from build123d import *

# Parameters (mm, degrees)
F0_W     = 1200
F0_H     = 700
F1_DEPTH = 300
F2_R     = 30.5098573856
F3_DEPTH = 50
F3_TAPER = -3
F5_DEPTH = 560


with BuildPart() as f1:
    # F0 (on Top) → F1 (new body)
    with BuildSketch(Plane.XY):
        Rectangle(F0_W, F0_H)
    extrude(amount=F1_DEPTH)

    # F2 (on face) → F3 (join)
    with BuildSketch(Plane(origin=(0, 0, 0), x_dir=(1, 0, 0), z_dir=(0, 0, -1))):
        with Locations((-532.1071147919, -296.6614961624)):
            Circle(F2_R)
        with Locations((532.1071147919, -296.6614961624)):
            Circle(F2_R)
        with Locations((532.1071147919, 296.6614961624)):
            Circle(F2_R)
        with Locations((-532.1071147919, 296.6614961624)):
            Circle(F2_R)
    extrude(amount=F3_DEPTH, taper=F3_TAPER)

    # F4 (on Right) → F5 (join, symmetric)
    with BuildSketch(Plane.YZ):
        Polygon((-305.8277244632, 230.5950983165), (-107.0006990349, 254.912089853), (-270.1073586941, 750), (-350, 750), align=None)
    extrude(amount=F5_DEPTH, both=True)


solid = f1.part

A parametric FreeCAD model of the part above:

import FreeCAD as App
import Part
import Sketcher

doc = App.newDocument("Part")
params = doc.addObject("Spreadsheet::Sheet", "Params")
for row, (alias, value) in enumerate([
    ("sketch1_width", "1200 mm"),
    ("sketch1_height", "700 mm"),
    ("pad1_length", "300 mm"),
    ("pad2_length", "50 mm"),
    ("pad2_taper", "3 deg"),
    ("pad3_length", "1120 mm"),
], start=1):
    params.set(f"A{row}", alias)
    params.set(f"B{row}", "=" + value)
    params.setAlias(f"B{row}", alias)

body = doc.addObject("PartDesign::Body", "Body")

sketch1 = body.newObject("Sketcher::SketchObject", "Sketch")
sketch1.AttachmentSupport = (doc.getObject("XY_Plane"), [""])
sketch1.MapMode = "FlatFace"
sketch1.addGeometry(Part.LineSegment(App.Vector(-600, 350, 0), App.Vector(-600, -350, 0)), False)
sketch1.addGeometry(Part.LineSegment(App.Vector(-600, -350, 0), App.Vector(600, -350, 0)), False)
sketch1.addGeometry(Part.LineSegment(App.Vector(600, -350, 0), App.Vector(600, 350, 0)), False)
sketch1.addGeometry(Part.LineSegment(App.Vector(600, 350, 0), App.Vector(-600, 350, 0)), False)
sketch1.addConstraint(Sketcher.Constraint("Coincident", 0, 2, 1, 1))
sketch1.addConstraint(Sketcher.Constraint("Coincident", 1, 2, 2, 1))
sketch1.addConstraint(Sketcher.Constraint("Coincident", 2, 2, 3, 1))
sketch1.addConstraint(Sketcher.Constraint("Coincident", 3, 2, 0, 1))
sketch1.addConstraint(Sketcher.Constraint("Vertical", 0))
sketch1.addConstraint(Sketcher.Constraint("Horizontal", 1))
sketch1.addConstraint(Sketcher.Constraint("Vertical", 2))
sketch1.addConstraint(Sketcher.Constraint("Horizontal", 3))
sketch1.addConstraint(Sketcher.Constraint("Symmetric", 0, 2, 2, 2, -1, 1))
sketch1.addConstraint(Sketcher.Constraint("DistanceX", 1, 1, 1, 2, 1200.0))
sketch1.addConstraint(Sketcher.Constraint("DistanceY", 0, 2, 0, 1, 700.0))
sketch1.setExpression("Constraints[9]", "Params.sketch1_width")
sketch1.setExpression("Constraints[10]", "Params.sketch1_height")
pad1 = body.newObject("PartDesign::Pad", "Pad")
pad1.Profile = sketch1
pad1.setExpression("Length", "Params.pad1_length")

sketch2 = body.newObject("Sketcher::SketchObject", "Sketch001")
sketch2.AttachmentSupport = (doc.getObject("XY_Plane"), [""])
sketch2.MapMode = "FlatFace"
sketch2.addGeometry(Part.Circle(App.Vector(-532, 297, 0), App.Vector(0, 0, 1), 31), False)
sketch2.addGeometry(Part.Circle(App.Vector(532, 297, 0), App.Vector(0, 0, 1), 31), False)
sketch2.addGeometry(Part.Circle(App.Vector(532, -297, 0), App.Vector(0, 0, 1), 31), False)
sketch2.addGeometry(Part.Circle(App.Vector(-532, -297, 0), App.Vector(0, 0, 1), 31), False)
sketch2.addConstraint(Sketcher.Constraint("Equal", 0, 1))
sketch2.addConstraint(Sketcher.Constraint("Equal", 1, 2))
sketch2.addConstraint(Sketcher.Constraint("Equal", 2, 3))
sketch2.addConstraint(Sketcher.Constraint("Symmetric", 0, 3, 2, 3, -1, 1))
sketch2.addConstraint(Sketcher.Constraint("Symmetric", 1, 3, 3, 3, -1, 1))
sketch2.addConstraint(Sketcher.Constraint("Symmetric", 0, 3, 1, 3, -2))
sketch2.addConstraint(Sketcher.Constraint("Diameter", 0, 61.019715))
sketch2.addConstraint(Sketcher.Constraint("DistanceX", 0, 3, 1, 3, 1064.21423))
sketch2.addConstraint(Sketcher.Constraint("DistanceY", -1, 1, 0, 3, 296.661496))
pad2 = body.newObject("PartDesign::Pad", "Pad001")
pad2.Profile = sketch2
pad2.setExpression("Length", "Params.pad2_length")
pad2.Reversed = True
pad2.setExpression("TaperAngle", "Params.pad2_taper")

sketch3 = body.newObject("Sketcher::SketchObject", "Sketch002")
sketch3.AttachmentSupport = (doc.getObject("YZ_Plane"), [""])
sketch3.MapMode = "FlatFace"
sketch3.addGeometry(Part.LineSegment(App.Vector(-306, 231, 0), App.Vector(-107, 255, 0)), False)
sketch3.addGeometry(Part.LineSegment(App.Vector(-107, 255, 0), App.Vector(-270, 750, 0)), False)
sketch3.addGeometry(Part.LineSegment(App.Vector(-270, 750, 0), App.Vector(-350, 750, 0)), False)
sketch3.addGeometry(Part.LineSegment(App.Vector(-350, 750, 0), App.Vector(-306, 231, 0)), False)
sketch3.addConstraint(Sketcher.Constraint("Coincident", 0, 2, 1, 1))
sketch3.addConstraint(Sketcher.Constraint("Coincident", 1, 2, 2, 1))
sketch3.addConstraint(Sketcher.Constraint("Coincident", 2, 2, 3, 1))
sketch3.addConstraint(Sketcher.Constraint("Coincident", 3, 2, 0, 1))
sketch3.addConstraint(Sketcher.Constraint("Horizontal", 2))
sketch3.addConstraint(Sketcher.Constraint("DistanceY", -1, 1, 1, 2, 750.0))
sketch3.addConstraint(Sketcher.Constraint("DistanceX", 2, 2, -1, 1, 350.0))
sketch3.addConstraint(Sketcher.Constraint("DistanceX", 2, 2, 2, 1, 79.892641))
sketch3.addConstraint(Sketcher.Constraint("DistanceX", 0, 2, -1, 1, 107.000699))
sketch3.addConstraint(Sketcher.Constraint("DistanceY", -1, 1, 3, 2, 230.595098))
sketch3.addConstraint(Sketcher.Constraint("Distance", 3, 521.279811))
sketch3.addConstraint(Sketcher.Constraint("DistanceY", -1, 1, 0, 2, 254.91209))
pad3 = body.newObject("PartDesign::Pad", "Pad002")
pad3.Profile = sketch3
pad3.setExpression("Length", "Params.pad3_length")
pad3.Midplane = True

doc.recompute()
